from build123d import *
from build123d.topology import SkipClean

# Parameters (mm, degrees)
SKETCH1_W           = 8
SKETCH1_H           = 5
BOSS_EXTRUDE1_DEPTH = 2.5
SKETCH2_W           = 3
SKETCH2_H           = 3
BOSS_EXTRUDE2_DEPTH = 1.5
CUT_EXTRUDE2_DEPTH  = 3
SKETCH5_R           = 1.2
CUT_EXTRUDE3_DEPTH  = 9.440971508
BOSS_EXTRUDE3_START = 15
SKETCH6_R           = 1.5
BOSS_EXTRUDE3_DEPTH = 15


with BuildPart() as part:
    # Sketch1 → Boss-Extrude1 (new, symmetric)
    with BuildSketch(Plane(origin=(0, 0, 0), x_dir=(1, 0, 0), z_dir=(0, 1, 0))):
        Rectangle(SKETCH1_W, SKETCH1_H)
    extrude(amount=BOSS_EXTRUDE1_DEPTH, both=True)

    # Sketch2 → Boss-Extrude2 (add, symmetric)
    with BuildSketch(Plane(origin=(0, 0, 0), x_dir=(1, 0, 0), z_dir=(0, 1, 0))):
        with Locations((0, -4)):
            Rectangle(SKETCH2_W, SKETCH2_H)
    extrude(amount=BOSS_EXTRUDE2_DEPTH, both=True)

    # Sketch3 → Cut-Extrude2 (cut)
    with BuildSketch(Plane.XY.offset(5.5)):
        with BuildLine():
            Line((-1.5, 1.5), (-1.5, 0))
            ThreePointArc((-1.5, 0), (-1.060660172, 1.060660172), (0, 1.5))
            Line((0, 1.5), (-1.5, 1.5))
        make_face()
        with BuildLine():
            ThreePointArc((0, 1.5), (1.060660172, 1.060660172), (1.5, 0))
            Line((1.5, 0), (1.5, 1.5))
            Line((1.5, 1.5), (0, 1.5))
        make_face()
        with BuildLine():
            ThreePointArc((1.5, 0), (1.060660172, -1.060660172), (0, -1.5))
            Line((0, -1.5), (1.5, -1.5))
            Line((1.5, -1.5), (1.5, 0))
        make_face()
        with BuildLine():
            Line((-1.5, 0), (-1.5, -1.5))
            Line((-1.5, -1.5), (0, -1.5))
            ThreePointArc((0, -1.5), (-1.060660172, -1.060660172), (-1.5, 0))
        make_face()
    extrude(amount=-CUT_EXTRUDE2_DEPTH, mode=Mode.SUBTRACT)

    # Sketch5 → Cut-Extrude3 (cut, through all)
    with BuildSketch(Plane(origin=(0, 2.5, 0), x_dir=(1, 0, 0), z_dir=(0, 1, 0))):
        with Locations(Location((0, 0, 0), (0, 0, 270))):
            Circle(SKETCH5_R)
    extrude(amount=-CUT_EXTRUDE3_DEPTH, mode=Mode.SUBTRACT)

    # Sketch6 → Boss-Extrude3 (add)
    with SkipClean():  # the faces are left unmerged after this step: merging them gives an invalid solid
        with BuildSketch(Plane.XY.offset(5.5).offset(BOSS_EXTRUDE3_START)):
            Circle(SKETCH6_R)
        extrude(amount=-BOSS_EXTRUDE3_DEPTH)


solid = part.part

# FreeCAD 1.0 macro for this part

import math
import FreeCAD as App
import Part
import Sketcher
Q = App.Units.Quantity


def add_polygon(sketch, points):
    """Adds a closed chain of lines whose ends are joined by coincident constraints."""
    first, n = sketch.GeometryCount, len(points)
    for a, b in zip(points, points[1:] + points[:1]):
        sketch.addGeometry(Part.LineSegment(App.Vector(*a, 0), App.Vector(*b, 0)), False)
    for i in range(n):
        sketch.addConstraint(Sketcher.Constraint("Coincident", first + i, 2, first + (i + 1) % n, 1))

doc = App.newDocument("Part")
params = doc.addObject("Spreadsheet::Sheet", "Params")
for row, (alias, value) in enumerate([
    ("sketch1_width", "8 mm"),
    ("sketch1_height", "5 mm"),
    ("pad1_length", "5 mm"),
    ("sketch2_width", "3 mm"),
    ("pad2_length", "3 mm"),
    ("sketch3_radius", "1.5 mm"),
    ("pocket1_length", "3 mm"),
    ("sketch4_diameter", "2.4 mm"),
    ("sketch5_diameter", "3 mm"),
    ("pad3_length", "15 mm"),
], start=1):
    params.set(f"A{row}", alias)
    params.set(f"B{row}", "=" + value)
    params.setAlias(f"B{row}", alias)

body = doc.addObject("PartDesign::Body", "Body")

sketch1 = doc.addObject("Sketcher::SketchObject", "Sketch")
body.addObject(sketch1)
sketch1.AttachmentSupport = (doc.XZ_Plane, [""])
sketch1.MapMode = "FlatFace"
add_polygon(sketch1, [(-4, -2.5), (-4, 2.5), (4, 2.5), (4, -2.5)])
sketch1.addConstraint(Sketcher.Constraint("Vertical", 0))
sketch1.addConstraint(Sketcher.Constraint("Horizontal", 1))
sketch1.addConstraint(Sketcher.Constraint("Vertical", 2))
sketch1.addConstraint(Sketcher.Constraint("Horizontal", 3))
sketch1.addConstraint(Sketcher.Constraint("Symmetric", 0, 2, 2, 2, -1, 1))
sketch1.addConstraint(Sketcher.Constraint("DistanceX", 1, 1, 1, 2, Q("8 mm")))
sketch1.addConstraint(Sketcher.Constraint("DistanceY", 0, 1, 0, 2, Q("5 mm")))
sketch1.setExpression("Constraints[9]", "Params.sketch1_width")
sketch1.setExpression("Constraints[10]", "Params.sketch1_height")
pad1 = doc.addObject("PartDesign::Pad", "Pad")
body.addObject(pad1)
pad1.Profile = sketch1
pad1.setExpression("Length", "Params.pad1_length")
pad1.Midplane = True

sketch2 = doc.addObject("Sketcher::SketchObject", "Sketch001")
body.addObject(sketch2)
sketch2.AttachmentSupport = (doc.XZ_Plane, [""])
sketch2.MapMode = "FlatFace"
add_polygon(sketch2, [(-1.5, 2.5), (-1.5, 5.5), (1.5, 5.5), (1.5, 2.5)])
sketch2.addConstraint(Sketcher.Constraint("Vertical", 0))
sketch2.addConstraint(Sketcher.Constraint("Horizontal", 1))
sketch2.addConstraint(Sketcher.Constraint("Vertical", 2))
sketch2.addConstraint(Sketcher.Constraint("Horizontal", 3))
sketch2.addConstraint(Sketcher.Constraint("Equal", 3, 0))
sketch2.addConstraint(Sketcher.Constraint("DistanceX", 1, 1, 1, 2, Q("3 mm")))
sketch2.addConstraint(Sketcher.Constraint("DistanceX", 0, 2, -1, 1, Q("1.5 mm")))
sketch2.addConstraint(Sketcher.Constraint("DistanceY", -1, 1, 0, 2, Q("5.5 mm")))
sketch2.setExpression("Constraints[9]", "Params.sketch2_width")
pad2 = doc.addObject("PartDesign::Pad", "Pad001")
body.addObject(pad2)
pad2.Profile = sketch2
pad2.setExpression("Length", "Params.pad2_length")
pad2.Midplane = True

sketch3 = doc.addObject("Sketcher::SketchObject", "Sketch002")
body.addObject(sketch3)
sketch3.AttachmentSupport = (doc.XY_Plane, [""])
sketch3.MapMode = "FlatFace"
sketch3.AttachmentOffset = App.Placement(App.Vector(0, 0, 5.5), App.Rotation())
sketch3.addGeometry(Part.LineSegment(App.Vector(-1.5, 1.5, 0), App.Vector(-1.5, 0, 0)), False)
sketch3.addGeometry(Part.ArcOfCircle(Part.Circle(App.Vector(0, 0, 0), App.Vector(0, 0, 1), 1.5), math.radians(90), math.radians(180)), False)
sketch3.addGeometry(Part.LineSegment(App.Vector(0, 1.5, 0), App.Vector(-1.5, 1.5, 0)), False)
sketch3.addGeometry(Part.ArcOfCircle(Part.Circle(App.Vector(0, 0, 0), App.Vector(0, 0, 1), 1.5), math.radians(0), math.radians(90)), False)
sketch3.addGeometry(Part.LineSegment(App.Vector(1.5, 0, 0), App.Vector(1.5, 1.5, 0)), False)
sketch3.addGeometry(Part.LineSegment(App.Vector(1.5, 1.5, 0), App.Vector(0, 1.5, 0)), False)
sketch3.addGeometry(Part.ArcOfCircle(Part.Circle(App.Vector(0, 0, 0), App.Vector(0, 0, 1), 1.5), math.radians(-90), math.radians(0)), False)
sketch3.addGeometry(Part.LineSegment(App.Vector(0, -1.5, 0), App.Vector(1.5, -1.5, 0)), False)
sketch3.addGeometry(Part.LineSegment(App.Vector(1.5, -1.5, 0), App.Vector(1.5, 0, 0)), False)
sketch3.addGeometry(Part.LineSegment(App.Vector(-1.5, 0, 0), App.Vector(-1.5, -1.5, 0)), False)
sketch3.addGeometry(Part.LineSegment(App.Vector(-1.5, -1.5, 0), App.Vector(0, -1.5, 0)), False)
sketch3.addGeometry(Part.ArcOfCircle(Part.Circle(App.Vector(0, 0, 0), App.Vector(0, 0, 1), 1.5), math.radians(180), math.radians(270)), False)
sketch3.addConstraint(Sketcher.Constraint("Tangent", 0, 2, 1, 2))
sketch3.addConstraint(Sketcher.Constraint("Tangent", 1, 1, 2, 1))
sketch3.addConstraint(Sketcher.Constraint("Coincident", 2, 2, 0, 1))
sketch3.addConstraint(Sketcher.Constraint("Tangent", 3, 1, 4, 1))
sketch3.addConstraint(Sketcher.Constraint("Coincident", 4, 2, 5, 1))
sketch3.addConstraint(Sketcher.Constraint("Tangent", 5, 2, 3, 2))
sketch3.addConstraint(Sketcher.Constraint("Tangent", 6, 1, 7, 1))
sketch3.addConstraint(Sketcher.Constraint("Coincident", 7, 2, 8, 1))
sketch3.addConstraint(Sketcher.Constraint("Tangent", 8, 2, 6, 2))
sketch3.addConstraint(Sketcher.Constraint("Coincident", 9, 2, 10, 1))
sketch3.addConstraint(Sketcher.Constraint("Tangent", 10, 2, 11, 2))
sketch3.addConstraint(Sketcher.Constraint("Tangent", 11, 1, 9, 1))
sketch3.addConstraint(Sketcher.Constraint("Vertical", 0))
sketch3.addConstraint(Sketcher.Constraint("Horizontal", 2))
sketch3.addConstraint(Sketcher.Constraint("Vertical", 4))
sketch3.addConstraint(Sketcher.Constraint("Horizontal", 5))
sketch3.addConstraint(Sketcher.Constraint("Horizontal", 7))
sketch3.addConstraint(Sketcher.Constraint("Vertical", 8))
sketch3.addConstraint(Sketcher.Constraint("Vertical", 9))
sketch3.addConstraint(Sketcher.Constraint("Horizontal", 10))
sketch3.addConstraint(Sketcher.Constraint("Coincident", 1, 3, -1, 1))
sketch3.addConstraint(Sketcher.Constraint("Coincident", 3, 3, -1, 1))
sketch3.addConstraint(Sketcher.Constraint("Coincident", 6, 3, -1, 1))
sketch3.addConstraint(Sketcher.Constraint("Coincident", 11, 3, -1, 1))
sketch3.addConstraint(Sketcher.Constraint("Equal", 1, 3))
sketch3.addConstraint(Sketcher.Constraint("Equal", 3, 6))
sketch3.addConstraint(Sketcher.Constraint("Equal", 6, 11))
sketch3.addConstraint(Sketcher.Constraint("Radius", 1, Q("1.5 mm")))
sketch3.setExpression("Constraints[27]", "Params.sketch3_radius")
pocket1 = doc.addObject("PartDesign::Pocket", "Pocket")
body.addObject(pocket1)
pocket1.Profile = sketch3
pocket1.setExpression("Length", "Params.pocket1_length")

sketch4 = doc.addObject("Sketcher::SketchObject", "Sketch003")
body.addObject(sketch4)
sketch4.AttachmentSupport = (doc.XZ_Plane, [""])
sketch4.MapMode = "FlatFace"
sketch4.AttachmentOffset = App.Placement(App.Vector(0, 0, -2.5), App.Rotation())
sketch4.addGeometry(Part.Circle(App.Vector(0, 0, 0), App.Vector(0, 0, 1), 1.2), False)
sketch4.addConstraint(Sketcher.Constraint("Coincident", 0, 3, -1, 1))
sketch4.addConstraint(Sketcher.Constraint("Diameter", 0, Q("2.4 mm")))
sketch4.setExpression("Constraints[1]", "Params.sketch4_diameter")
pocket2 = doc.addObject("PartDesign::Pocket", "Pocket001")
body.addObject(pocket2)
pocket2.Profile = sketch4
pocket2.Type = "ThroughAll"
pocket2.Reversed = True

sketch5 = doc.addObject("Sketcher::SketchObject", "Sketch004")
body.addObject(sketch5)
sketch5.AttachmentSupport = (doc.XY_Plane, [""])
sketch5.MapMode = "FlatFace"
sketch5.AttachmentOffset = App.Placement(App.Vector(0, 0, 20.5), App.Rotation())
sketch5.addGeometry(Part.Circle(App.Vector(0, 0, 0), App.Vector(0, 0, 1), 1.5), False)
sketch5.addConstraint(Sketcher.Constraint("Coincident", 0, 3, -1, 1))
sketch5.addConstraint(Sketcher.Constraint("Diameter", 0, Q("3 mm")))
sketch5.setExpression("Constraints[1]", "Params.sketch5_diameter")
pad3 = doc.addObject("PartDesign::Pad", "Pad002")
body.addObject(pad3)
pad3.Profile = sketch5
pad3.setExpression("Length", "Params.pad3_length")
pad3.Reversed = True

doc.recompute()
